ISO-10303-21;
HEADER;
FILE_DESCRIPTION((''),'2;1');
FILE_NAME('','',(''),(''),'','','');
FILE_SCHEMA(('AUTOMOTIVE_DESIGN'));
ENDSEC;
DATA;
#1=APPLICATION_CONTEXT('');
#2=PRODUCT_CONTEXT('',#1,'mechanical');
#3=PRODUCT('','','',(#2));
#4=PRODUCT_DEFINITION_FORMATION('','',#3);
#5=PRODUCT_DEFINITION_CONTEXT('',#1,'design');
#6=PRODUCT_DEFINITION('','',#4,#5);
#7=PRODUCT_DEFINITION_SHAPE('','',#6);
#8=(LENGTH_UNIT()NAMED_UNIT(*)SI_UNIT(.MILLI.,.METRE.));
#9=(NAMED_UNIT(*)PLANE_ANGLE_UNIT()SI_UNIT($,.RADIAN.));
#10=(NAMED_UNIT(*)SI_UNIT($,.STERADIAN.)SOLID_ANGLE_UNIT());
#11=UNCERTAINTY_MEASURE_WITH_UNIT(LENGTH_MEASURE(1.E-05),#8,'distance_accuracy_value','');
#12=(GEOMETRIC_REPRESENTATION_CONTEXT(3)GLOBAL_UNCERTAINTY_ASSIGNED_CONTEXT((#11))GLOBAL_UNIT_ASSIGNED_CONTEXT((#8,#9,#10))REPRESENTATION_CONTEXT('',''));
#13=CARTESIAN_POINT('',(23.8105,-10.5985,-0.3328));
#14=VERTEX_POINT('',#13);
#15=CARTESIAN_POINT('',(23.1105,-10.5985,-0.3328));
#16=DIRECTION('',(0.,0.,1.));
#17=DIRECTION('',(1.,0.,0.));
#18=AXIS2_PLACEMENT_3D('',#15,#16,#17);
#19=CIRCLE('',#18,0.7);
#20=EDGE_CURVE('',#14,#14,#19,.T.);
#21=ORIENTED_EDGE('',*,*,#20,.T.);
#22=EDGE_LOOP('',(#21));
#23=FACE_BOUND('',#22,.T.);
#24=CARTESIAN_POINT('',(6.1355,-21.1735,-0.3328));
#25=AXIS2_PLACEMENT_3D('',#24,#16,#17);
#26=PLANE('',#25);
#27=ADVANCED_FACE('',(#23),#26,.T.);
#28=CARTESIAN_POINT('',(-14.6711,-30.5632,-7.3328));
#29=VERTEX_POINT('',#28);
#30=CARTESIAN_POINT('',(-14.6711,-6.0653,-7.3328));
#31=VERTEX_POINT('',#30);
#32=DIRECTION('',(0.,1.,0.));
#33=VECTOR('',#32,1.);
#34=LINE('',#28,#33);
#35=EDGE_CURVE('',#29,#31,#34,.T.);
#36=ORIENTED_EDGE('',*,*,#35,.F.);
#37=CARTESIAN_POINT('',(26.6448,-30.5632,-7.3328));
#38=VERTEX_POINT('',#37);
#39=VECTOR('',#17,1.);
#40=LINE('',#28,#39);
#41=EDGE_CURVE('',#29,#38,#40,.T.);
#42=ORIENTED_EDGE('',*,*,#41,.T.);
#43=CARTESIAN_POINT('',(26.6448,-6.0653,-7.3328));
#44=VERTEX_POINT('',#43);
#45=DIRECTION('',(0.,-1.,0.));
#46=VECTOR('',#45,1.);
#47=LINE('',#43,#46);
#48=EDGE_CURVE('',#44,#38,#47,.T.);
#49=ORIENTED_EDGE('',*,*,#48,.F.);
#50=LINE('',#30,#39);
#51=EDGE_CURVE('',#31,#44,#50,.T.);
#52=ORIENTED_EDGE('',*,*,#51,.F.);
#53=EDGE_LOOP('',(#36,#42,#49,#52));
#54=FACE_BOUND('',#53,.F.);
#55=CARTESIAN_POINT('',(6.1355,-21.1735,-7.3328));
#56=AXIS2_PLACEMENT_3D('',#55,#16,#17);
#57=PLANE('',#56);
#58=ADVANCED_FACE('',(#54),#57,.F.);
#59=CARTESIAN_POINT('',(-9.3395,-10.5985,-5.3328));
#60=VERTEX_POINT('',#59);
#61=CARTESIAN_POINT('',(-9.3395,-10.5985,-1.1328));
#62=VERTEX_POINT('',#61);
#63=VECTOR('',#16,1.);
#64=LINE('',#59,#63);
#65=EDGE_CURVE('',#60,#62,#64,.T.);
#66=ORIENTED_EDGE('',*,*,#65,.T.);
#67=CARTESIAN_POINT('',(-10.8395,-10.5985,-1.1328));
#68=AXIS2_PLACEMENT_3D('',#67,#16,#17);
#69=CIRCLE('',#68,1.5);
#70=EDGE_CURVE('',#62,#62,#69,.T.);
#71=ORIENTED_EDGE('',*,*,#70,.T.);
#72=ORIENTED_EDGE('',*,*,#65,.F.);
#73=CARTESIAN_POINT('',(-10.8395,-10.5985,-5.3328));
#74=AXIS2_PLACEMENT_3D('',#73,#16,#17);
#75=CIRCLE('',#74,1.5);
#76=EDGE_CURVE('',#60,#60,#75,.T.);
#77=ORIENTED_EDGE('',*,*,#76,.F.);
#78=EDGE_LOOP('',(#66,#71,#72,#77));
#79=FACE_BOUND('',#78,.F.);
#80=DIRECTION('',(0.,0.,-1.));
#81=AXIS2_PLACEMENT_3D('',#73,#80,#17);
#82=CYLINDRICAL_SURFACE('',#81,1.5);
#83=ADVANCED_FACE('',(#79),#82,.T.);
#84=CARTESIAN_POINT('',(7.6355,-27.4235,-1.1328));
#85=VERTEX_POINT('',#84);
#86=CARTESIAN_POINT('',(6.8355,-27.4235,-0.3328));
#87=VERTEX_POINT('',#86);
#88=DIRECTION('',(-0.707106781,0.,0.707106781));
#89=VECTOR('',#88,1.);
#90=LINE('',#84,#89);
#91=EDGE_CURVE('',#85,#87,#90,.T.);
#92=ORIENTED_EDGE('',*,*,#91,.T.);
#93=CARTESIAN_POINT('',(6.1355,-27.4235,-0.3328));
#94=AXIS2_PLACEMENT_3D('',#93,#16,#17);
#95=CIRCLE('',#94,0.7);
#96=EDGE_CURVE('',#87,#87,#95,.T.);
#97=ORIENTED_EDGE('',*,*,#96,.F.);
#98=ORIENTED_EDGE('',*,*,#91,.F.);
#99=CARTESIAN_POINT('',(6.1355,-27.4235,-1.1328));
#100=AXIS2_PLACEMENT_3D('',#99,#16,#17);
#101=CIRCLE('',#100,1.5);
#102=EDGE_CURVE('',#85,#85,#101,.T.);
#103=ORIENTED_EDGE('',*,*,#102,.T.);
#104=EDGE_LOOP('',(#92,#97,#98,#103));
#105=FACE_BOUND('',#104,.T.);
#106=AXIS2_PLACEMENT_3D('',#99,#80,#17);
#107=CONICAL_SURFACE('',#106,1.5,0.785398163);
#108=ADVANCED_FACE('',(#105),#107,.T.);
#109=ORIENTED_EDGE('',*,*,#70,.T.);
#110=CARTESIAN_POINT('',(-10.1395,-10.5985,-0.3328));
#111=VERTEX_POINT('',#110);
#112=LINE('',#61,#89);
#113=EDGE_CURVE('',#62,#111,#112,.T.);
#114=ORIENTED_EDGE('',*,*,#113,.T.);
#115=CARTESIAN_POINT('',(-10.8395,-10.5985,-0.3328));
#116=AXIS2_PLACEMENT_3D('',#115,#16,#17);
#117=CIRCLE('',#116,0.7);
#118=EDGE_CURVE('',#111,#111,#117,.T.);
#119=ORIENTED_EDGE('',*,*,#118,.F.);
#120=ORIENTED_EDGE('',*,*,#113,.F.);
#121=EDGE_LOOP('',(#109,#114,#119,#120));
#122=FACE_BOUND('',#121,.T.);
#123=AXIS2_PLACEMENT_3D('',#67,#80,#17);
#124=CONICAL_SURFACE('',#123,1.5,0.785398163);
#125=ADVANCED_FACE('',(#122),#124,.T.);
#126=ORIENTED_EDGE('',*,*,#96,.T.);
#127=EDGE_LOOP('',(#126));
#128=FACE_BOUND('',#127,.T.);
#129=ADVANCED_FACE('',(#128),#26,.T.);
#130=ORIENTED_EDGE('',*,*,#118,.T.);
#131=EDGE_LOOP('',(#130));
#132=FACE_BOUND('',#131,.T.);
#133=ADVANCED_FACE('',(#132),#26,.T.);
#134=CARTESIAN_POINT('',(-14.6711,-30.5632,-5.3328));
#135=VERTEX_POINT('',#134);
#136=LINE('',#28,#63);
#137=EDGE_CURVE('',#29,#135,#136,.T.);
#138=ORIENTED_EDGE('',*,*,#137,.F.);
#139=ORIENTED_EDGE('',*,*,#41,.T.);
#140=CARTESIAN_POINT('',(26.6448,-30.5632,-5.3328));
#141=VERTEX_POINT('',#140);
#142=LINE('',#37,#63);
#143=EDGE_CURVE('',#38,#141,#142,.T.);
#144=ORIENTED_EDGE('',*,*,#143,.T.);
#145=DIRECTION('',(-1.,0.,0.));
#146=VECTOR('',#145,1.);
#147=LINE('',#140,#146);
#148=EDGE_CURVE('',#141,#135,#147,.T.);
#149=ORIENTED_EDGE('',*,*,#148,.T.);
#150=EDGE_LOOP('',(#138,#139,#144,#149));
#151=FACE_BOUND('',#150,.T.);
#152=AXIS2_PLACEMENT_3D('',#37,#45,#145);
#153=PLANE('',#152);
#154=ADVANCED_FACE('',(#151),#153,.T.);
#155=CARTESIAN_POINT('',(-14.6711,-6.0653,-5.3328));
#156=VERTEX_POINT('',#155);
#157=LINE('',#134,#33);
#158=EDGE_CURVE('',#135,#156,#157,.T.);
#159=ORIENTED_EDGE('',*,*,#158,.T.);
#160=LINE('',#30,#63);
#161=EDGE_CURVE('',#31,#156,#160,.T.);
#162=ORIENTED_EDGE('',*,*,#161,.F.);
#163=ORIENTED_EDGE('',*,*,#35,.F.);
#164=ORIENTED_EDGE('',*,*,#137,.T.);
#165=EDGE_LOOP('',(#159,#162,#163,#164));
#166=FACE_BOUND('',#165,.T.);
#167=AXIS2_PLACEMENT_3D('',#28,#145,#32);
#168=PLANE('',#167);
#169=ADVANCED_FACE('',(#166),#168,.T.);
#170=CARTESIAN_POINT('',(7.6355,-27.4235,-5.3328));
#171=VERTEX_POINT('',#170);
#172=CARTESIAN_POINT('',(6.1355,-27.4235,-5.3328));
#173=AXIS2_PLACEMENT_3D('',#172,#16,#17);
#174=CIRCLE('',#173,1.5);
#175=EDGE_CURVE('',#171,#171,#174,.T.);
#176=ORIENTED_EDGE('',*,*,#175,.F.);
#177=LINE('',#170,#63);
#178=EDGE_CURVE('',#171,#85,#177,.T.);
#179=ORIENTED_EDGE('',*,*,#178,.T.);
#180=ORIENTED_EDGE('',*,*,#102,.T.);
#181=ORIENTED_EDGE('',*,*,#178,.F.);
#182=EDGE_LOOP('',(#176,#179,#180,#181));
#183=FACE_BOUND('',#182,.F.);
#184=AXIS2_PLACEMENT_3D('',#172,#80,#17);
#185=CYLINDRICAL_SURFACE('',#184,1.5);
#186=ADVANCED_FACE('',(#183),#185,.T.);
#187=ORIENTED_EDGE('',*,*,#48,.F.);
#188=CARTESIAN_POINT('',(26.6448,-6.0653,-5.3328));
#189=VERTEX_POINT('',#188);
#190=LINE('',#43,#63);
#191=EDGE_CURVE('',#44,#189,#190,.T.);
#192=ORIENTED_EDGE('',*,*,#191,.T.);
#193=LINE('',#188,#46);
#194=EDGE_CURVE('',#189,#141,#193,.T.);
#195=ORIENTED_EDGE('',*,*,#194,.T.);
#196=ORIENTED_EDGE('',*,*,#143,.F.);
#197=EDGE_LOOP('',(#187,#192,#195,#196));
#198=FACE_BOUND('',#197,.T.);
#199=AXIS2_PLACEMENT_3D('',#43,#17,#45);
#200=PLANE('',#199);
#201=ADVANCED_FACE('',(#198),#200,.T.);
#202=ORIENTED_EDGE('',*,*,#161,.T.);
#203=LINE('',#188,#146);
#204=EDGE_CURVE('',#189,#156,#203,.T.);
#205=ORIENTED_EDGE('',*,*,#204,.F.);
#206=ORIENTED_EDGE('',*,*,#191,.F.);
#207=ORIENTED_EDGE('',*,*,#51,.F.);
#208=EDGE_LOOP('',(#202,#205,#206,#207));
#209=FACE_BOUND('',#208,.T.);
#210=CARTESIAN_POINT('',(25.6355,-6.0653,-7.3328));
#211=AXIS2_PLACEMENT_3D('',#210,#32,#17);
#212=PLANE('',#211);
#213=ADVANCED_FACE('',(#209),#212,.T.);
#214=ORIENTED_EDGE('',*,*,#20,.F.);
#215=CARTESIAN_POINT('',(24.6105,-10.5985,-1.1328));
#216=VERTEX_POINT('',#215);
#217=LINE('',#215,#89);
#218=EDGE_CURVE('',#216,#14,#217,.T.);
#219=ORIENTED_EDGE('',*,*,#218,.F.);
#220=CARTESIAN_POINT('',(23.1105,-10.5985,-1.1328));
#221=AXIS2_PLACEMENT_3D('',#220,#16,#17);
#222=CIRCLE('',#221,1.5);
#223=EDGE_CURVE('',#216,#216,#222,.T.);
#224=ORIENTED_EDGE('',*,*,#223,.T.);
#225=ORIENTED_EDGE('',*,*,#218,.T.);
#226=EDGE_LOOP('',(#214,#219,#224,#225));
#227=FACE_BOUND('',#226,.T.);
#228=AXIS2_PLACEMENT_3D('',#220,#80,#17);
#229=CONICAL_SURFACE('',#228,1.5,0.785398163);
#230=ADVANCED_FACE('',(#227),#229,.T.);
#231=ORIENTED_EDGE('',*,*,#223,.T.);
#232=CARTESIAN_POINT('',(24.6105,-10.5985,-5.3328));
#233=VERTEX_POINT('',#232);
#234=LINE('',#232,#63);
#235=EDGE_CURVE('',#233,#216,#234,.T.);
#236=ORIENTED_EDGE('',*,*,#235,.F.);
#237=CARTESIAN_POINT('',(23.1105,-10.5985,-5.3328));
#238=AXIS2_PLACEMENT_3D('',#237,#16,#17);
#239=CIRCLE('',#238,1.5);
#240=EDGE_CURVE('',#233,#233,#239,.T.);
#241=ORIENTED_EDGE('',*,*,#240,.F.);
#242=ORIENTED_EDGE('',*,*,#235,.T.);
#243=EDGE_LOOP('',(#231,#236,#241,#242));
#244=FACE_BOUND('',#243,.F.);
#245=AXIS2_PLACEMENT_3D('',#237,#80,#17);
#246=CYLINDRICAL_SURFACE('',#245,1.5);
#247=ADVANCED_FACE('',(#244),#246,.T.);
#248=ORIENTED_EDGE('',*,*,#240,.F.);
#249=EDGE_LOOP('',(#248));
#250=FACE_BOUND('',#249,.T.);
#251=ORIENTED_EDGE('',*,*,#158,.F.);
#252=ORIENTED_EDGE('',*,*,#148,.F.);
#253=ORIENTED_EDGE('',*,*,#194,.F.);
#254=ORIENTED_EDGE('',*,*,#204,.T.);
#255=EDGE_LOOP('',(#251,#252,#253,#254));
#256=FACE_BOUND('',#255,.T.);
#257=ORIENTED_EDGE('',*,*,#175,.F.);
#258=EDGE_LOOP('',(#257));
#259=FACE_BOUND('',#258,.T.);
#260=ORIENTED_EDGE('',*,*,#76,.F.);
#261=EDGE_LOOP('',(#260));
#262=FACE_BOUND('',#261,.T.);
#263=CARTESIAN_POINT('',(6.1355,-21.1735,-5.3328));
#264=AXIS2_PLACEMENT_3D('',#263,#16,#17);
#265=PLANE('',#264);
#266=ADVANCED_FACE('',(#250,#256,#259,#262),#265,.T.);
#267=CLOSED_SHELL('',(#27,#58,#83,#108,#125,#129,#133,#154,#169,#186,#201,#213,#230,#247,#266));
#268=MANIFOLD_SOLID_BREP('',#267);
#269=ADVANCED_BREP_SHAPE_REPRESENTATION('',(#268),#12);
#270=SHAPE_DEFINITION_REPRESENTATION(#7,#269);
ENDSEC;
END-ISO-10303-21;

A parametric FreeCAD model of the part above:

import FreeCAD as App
import Part
import Sketcher

V = App.Vector


def edges_at(feature, points):
    """Names of the edges that pass closest to the given points."""
    edges = feature.Shape.Edges
    near = lambda p: min(range(len(edges)), key=lambda i: edges[i].distToShape(Part.Vertex(*p))[0])
    return sorted({f"Edge{near(p) + 1}" for p in points})


def add_polygon(sketch, points):
    """Adds a closed chain of lines whose ends are joined by coincident constraints."""
    first, n = sketch.GeometryCount, len(points)
    for a, b in zip(points, points[1:] + points[:1]):
        sketch.addGeometry(Part.LineSegment(App.Vector(*a, 0), App.Vector(*b, 0)), False)
    for i in range(n):
        sketch.addConstraint(Sketcher.Constraint("Coincident", first + i, 2, first + (i + 1) % n, 1))

doc = App.newDocument("Part")
body = doc.addObject("PartDesign::Body", "Body")

# Sketch on XY plane
sketch1 = doc.addObject("Sketcher::SketchObject", "Sketch")
body.addObject(sketch1)
sketch1.AttachmentSupport = (doc.XY_Plane, [""])
sketch1.MapMode = "FlatFace"
sketch1.AttachmentOffset = App.Placement(V(0, 0, -7.3328), App.Rotation())
add_polygon(sketch1, [(27, -31), (27, -6), (-15, -6), (-15, -31)])  # lines 0-3
sketch1.addConstraint(Sketcher.Constraint("Vertical", 0))
sketch1.addConstraint(Sketcher.Constraint("Horizontal", 1))
sketch1.addConstraint(Sketcher.Constraint("Vertical", 2))
sketch1.addConstraint(Sketcher.Constraint("Horizontal", 3))
sketch1.addConstraint(Sketcher.Constraint("DistanceX", 1, 2, 1, 1, 41.316))
sketch1.addConstraint(Sketcher.Constraint("DistanceY", 0, 1, 0, 2, 24.498))
sketch1.addConstraint(Sketcher.Constraint("DistanceX", 1, 2, -1, 1, 14.671))
sketch1.addConstraint(Sketcher.Constraint("DistanceY", 0, 2, -1, 1, 6.0653))
pad1 = doc.addObject("PartDesign::Pad", "Pad")
body.addObject(pad1)
pad1.Profile = sketch1
pad1.Length = 2

# Sketch on XY plane
sketch2 = doc.addObject("Sketcher::SketchObject", "Sketch001")
body.addObject(sketch2)
sketch2.AttachmentSupport = (doc.XY_Plane, [""])
sketch2.MapMode = "FlatFace"
sketch2.AttachmentOffset = App.Placement(V(0, 0, -5.3328), App.Rotation())
sketch2.addGeometry(Part.Circle(V(6.1, -27.4, 0), V(0, 0, 1), 1.5), False)
sketch2.addGeometry(Part.Circle(V(-10.8, -10.6, 0), V(0, 0, 1), 1.5), False)
sketch2.addGeometry(Part.Circle(V(23.1, -10.6, 0), V(0, 0, 1), 1.5), False)
sketch2.addConstraint(Sketcher.Constraint("Equal", 0, 1))
sketch2.addConstraint(Sketcher.Constraint("Equal", 1, 2))
sketch2.addConstraint(Sketcher.Constraint("Horizontal", 1, 3, 2, 3))
sketch2.addConstraint(Sketcher.Constraint("Diameter", 0, 3.0))
sketch2.addConstraint(Sketcher.Constraint("DistanceX", 1, 3, 2, 3, 33.95))
sketch2.addConstraint(Sketcher.Constraint("DistanceX", 1, 3, 0, 3, 16.975))
sketch2.addConstraint(Sketcher.Constraint("DistanceY", 0, 3, 1, 3, 16.825))
sketch2.addConstraint(Sketcher.Constraint("DistanceX", -1, 1, 0, 3, 6.1355))
sketch2.addConstraint(Sketcher.Constraint("DistanceY", 0, 3, -1, 1, 27.4235))
pad2 = doc.addObject("PartDesign::Pad", "Pad001")
body.addObject(pad2)
pad2.Profile = sketch2
pad2.Length = 5
doc.recompute()

chamfer = doc.addObject("PartDesign::Chamfer", "Chamfer")
body.addObject(chamfer)
chamfer.Base = (pad2, edges_at(pad2, [(21.61, -10.598, -0.333), (4.636, -27.424, -0.333), (-12.339, -10.598, -0.333)]))
chamfer.Size = 0.8

doc.recompute()
